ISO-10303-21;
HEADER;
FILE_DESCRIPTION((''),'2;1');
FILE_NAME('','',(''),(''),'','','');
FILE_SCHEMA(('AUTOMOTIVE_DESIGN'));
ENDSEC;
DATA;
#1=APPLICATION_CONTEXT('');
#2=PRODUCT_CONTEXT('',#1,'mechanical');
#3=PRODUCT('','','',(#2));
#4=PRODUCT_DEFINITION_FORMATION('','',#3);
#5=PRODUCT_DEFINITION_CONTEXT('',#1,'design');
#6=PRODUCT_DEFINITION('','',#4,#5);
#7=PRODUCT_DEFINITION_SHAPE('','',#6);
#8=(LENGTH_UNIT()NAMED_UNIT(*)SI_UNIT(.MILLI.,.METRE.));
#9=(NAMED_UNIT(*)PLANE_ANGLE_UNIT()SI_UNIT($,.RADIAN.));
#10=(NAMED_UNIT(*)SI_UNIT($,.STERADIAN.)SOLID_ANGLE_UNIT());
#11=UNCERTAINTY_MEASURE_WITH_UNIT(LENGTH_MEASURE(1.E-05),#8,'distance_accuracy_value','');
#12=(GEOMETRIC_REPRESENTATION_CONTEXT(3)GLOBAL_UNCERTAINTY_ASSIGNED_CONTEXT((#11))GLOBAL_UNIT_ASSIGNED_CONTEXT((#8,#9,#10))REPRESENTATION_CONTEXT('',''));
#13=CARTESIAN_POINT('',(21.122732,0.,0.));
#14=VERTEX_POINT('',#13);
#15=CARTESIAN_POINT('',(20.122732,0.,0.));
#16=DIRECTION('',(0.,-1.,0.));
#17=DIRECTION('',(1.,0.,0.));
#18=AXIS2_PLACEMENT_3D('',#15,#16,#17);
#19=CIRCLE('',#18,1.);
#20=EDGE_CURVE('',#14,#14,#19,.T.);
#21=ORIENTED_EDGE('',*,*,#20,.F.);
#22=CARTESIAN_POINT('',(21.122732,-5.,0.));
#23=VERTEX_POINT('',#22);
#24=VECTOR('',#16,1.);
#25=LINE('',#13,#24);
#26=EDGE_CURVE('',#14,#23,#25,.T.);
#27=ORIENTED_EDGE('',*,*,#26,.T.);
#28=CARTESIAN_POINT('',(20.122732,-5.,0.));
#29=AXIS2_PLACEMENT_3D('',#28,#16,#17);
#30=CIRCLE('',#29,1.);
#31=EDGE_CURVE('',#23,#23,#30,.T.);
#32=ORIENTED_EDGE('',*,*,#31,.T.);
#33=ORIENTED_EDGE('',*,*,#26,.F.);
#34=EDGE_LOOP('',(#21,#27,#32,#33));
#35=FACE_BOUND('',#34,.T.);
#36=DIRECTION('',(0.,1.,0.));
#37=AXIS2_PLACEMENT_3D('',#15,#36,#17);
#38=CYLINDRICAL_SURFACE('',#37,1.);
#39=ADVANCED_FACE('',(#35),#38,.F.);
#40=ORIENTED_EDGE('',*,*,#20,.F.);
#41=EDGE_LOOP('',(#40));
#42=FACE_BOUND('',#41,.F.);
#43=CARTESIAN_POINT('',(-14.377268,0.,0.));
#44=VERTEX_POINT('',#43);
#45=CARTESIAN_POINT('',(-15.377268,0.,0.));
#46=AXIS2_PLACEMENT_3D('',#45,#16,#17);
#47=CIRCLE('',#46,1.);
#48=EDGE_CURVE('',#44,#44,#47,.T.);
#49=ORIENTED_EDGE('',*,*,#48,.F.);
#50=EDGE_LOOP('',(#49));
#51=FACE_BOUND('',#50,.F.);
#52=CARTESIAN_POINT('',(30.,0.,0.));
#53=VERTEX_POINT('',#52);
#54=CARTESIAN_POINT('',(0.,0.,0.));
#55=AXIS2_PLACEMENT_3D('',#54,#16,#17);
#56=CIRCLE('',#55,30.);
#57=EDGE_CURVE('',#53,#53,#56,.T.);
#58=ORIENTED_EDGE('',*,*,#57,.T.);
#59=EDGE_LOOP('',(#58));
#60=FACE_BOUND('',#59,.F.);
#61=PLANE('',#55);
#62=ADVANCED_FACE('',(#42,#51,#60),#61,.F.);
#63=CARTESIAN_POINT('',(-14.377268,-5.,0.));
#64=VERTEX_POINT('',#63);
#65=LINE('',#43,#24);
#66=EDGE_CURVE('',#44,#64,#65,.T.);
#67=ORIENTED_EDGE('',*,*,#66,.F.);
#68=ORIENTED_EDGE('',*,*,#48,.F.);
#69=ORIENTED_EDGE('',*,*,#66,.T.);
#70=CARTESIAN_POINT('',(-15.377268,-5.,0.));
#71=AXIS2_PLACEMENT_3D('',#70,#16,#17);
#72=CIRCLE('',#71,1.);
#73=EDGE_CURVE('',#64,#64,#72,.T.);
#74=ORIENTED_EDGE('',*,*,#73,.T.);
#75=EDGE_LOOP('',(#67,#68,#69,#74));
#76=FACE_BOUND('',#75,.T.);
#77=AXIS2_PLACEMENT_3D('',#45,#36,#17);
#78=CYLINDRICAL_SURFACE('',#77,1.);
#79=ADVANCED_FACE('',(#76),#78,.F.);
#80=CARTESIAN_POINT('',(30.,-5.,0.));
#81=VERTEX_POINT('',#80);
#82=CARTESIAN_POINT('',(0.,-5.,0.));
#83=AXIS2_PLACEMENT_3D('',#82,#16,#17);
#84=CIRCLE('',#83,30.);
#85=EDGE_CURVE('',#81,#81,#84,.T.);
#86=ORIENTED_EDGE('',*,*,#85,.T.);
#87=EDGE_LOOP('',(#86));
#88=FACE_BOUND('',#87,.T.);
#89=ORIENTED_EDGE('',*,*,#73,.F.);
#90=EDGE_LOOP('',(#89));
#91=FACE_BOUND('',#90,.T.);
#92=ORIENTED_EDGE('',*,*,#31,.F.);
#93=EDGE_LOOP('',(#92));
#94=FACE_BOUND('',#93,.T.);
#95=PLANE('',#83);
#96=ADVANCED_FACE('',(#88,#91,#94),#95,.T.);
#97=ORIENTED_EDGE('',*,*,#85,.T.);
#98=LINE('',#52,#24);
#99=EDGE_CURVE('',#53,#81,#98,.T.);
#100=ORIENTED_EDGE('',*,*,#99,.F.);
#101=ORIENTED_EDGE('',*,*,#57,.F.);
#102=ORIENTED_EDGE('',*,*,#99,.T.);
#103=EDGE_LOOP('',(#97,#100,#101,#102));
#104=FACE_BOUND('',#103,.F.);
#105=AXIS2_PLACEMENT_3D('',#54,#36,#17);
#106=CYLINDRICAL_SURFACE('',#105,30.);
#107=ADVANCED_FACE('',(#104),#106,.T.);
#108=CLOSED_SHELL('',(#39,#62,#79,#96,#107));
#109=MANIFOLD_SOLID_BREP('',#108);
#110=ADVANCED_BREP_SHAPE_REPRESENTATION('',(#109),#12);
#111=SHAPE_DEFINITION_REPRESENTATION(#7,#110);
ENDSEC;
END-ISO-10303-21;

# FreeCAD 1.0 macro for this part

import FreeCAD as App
import Part
import Sketcher
Q = App.Units.Quantity

doc = App.newDocument("Part")
body = doc.addObject("PartDesign::Body", "Body")

sketch1 = doc.addObject("Sketcher::SketchObject", "Sketch")
body.addObject(sketch1)
sketch1.AttachmentSupport = (doc.XZ_Plane, [""])
sketch1.MapMode = "FlatFace"
sketch1.addGeometry(Part.Circle(App.Vector(0, 0, 0), App.Vector(0, 0, 1), 30), False)
sketch1.addGeometry(Part.Circle(App.Vector(-15.4, 0, 0), App.Vector(0, 0, 1), 1), False)
sketch1.addGeometry(Part.Circle(App.Vector(20.1, 0, 0), App.Vector(0, 0, 1), 1), False)
sketch1.addConstraint(Sketcher.Constraint("Coincident", 0, 3, -1, 1))
sketch1.addConstraint(Sketcher.Constraint("Equal", 1, 2))
sketch1.addConstraint(Sketcher.Constraint("PointOnObject", 1, 3, -1))
sketch1.addConstraint(Sketcher.Constraint("PointOnObject", 2, 3, -1))
sketch1.addConstraint(Sketcher.Constraint("Diameter", 0, Q("60 mm")))
sketch1.addConstraint(Sketcher.Constraint("Diameter", 1, Q("2 mm")))
sketch1.addConstraint(Sketcher.Constraint("DistanceX", 1, 3, 2, 3, Q("35.5 mm")))
sketch1.addConstraint(Sketcher.Constraint("DistanceX", 1, 3, -1, 1, Q("15.377268 mm")))
pad1 = doc.addObject("PartDesign::Pad", "Pad")
body.addObject(pad1)
pad1.Profile = sketch1
pad1.Length = 5

doc.recompute()
